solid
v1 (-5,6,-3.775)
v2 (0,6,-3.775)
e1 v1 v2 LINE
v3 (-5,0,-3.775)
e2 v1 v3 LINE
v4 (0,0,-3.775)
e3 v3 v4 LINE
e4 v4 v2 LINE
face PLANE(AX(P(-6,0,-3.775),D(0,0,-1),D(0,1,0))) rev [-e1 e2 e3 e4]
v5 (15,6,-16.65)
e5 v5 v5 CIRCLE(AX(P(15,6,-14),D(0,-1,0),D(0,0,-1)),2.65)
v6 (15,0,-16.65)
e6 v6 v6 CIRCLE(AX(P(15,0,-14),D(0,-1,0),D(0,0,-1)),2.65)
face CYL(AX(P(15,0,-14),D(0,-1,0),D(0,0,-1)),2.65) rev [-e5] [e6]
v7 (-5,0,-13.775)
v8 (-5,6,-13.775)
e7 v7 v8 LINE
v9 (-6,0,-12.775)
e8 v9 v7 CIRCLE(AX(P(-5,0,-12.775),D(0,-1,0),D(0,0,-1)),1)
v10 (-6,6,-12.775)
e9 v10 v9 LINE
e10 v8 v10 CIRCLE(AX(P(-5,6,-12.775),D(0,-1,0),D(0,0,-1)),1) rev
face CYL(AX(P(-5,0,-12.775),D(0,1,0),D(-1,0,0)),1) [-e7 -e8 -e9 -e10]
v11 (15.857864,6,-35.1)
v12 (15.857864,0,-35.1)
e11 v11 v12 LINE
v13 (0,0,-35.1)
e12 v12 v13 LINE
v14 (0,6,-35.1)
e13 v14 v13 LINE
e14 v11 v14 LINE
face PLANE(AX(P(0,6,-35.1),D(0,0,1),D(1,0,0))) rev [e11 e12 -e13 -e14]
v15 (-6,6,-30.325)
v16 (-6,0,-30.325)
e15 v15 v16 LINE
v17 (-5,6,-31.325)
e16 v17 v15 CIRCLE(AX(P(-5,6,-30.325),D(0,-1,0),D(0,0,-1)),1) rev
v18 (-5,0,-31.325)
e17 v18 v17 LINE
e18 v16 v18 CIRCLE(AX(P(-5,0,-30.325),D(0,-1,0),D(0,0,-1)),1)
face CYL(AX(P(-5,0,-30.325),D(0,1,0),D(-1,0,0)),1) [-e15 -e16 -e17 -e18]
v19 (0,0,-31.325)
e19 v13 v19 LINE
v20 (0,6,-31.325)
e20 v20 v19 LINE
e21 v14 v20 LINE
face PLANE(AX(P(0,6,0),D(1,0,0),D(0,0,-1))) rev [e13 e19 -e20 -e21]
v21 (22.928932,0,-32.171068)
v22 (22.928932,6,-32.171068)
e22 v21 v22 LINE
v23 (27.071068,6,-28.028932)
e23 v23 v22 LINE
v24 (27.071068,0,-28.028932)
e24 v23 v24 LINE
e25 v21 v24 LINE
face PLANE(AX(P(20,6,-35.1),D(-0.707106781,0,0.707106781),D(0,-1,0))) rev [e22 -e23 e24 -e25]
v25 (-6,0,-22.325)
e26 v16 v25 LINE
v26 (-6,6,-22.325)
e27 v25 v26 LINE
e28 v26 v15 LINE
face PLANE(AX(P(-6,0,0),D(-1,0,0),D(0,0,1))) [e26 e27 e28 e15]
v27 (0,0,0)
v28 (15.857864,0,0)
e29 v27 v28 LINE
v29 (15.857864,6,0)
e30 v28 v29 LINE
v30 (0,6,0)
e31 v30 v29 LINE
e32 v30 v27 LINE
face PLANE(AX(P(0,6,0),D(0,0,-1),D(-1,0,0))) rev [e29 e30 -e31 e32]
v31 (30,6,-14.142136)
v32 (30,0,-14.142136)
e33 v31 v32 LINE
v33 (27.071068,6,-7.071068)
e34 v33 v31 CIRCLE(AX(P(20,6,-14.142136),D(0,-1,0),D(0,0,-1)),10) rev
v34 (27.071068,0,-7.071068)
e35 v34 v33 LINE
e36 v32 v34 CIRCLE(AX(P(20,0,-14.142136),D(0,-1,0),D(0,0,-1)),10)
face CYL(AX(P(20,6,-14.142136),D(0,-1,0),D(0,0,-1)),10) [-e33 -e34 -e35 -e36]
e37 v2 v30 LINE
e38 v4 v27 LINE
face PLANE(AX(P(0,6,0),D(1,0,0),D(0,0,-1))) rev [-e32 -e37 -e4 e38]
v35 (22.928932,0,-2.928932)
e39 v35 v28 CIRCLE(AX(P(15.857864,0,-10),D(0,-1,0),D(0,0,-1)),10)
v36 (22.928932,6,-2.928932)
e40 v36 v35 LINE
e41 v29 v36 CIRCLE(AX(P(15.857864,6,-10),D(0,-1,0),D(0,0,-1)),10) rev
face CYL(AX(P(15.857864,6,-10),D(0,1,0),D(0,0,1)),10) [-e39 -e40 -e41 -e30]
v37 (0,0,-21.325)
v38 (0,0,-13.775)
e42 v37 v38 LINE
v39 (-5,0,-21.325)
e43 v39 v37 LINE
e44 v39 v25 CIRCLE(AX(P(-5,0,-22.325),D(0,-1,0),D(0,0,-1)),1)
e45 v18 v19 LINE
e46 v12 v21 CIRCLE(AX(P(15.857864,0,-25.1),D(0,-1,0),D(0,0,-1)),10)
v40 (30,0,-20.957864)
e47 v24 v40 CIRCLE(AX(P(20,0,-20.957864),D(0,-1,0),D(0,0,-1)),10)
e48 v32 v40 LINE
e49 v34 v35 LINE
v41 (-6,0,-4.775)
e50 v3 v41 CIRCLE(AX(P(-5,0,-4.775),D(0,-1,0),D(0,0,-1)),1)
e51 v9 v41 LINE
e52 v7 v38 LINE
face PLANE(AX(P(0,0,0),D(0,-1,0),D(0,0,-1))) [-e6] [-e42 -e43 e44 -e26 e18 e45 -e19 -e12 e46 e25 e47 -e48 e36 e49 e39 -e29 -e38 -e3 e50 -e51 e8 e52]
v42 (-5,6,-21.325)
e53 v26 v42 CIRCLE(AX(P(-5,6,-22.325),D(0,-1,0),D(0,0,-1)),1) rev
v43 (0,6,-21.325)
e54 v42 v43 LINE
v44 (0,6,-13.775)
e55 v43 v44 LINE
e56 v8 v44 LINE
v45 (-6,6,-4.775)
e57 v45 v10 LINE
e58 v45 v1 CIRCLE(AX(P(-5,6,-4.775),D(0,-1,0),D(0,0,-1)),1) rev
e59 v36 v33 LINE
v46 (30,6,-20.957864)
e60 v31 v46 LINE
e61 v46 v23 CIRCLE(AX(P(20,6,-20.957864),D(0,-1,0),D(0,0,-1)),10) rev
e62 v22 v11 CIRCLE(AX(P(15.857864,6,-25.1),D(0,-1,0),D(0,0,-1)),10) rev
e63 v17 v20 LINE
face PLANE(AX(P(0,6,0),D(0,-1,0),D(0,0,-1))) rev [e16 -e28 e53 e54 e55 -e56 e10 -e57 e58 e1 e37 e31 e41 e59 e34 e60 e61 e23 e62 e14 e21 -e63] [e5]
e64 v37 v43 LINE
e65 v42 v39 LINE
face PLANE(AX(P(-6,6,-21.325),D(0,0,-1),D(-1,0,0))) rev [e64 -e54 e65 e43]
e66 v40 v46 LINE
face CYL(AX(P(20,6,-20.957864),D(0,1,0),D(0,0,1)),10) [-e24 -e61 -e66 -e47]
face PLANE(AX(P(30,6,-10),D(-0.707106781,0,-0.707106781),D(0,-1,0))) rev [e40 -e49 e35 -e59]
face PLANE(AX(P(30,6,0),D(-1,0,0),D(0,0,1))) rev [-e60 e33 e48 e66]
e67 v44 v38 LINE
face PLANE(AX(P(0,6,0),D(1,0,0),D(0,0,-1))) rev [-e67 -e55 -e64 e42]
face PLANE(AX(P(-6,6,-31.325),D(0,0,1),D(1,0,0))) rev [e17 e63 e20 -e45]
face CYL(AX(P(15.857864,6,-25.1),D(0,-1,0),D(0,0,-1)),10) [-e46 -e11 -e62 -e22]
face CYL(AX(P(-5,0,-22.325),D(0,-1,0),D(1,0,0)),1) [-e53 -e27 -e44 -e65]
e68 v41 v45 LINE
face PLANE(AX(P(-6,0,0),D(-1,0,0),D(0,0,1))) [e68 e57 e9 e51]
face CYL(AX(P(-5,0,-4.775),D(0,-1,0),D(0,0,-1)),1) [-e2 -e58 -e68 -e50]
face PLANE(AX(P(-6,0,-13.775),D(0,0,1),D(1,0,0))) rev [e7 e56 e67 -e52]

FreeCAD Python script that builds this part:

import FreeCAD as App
import Part
import Sketcher
from FreeCAD import Vector


def edges_at(feature, points):
    """Names of the edges that pass closest to the given points."""
    edges = feature.Shape.Edges
    near = lambda p: min(range(len(edges)), key=lambda i: edges[i].distToShape(Part.Vertex(*p))[0])
    return sorted({f"Edge{near(p) + 1}" for p in points})

doc = App.newDocument("Part")
params = doc.addObject("Spreadsheet::Sheet", "Params")
for row, (alias, value) in enumerate([
    ("sketch1_width", "30 mm"),
    ("sketch1_height", "35.1 mm"),
    ("pad1_length", "6 mm"),
    ("chamfer_size", "10 mm"),
    ("sketch2_diameter", "5.3 mm"),
    ("hole_diameter", "5.3 mm"),
    ("sketch3_width", "6 mm"),
    ("sketch3_height", "10 mm"),
    ("pad2_length", "6 mm"),
    ("fillet_radius", "1 mm"),
    ("sketch4_width", "6 mm"),
    ("sketch4_height", "10 mm"),
    ("pad3_length", "6 mm"),
    ("fillet2_radius", "1 mm"),
    ("fillet3_radius", "10 mm"),
], start=1):
    params.set(f"A{row}", alias)
    params.set(f"B{row}", "=" + value)
    params.setAlias(f"B{row}", alias)

body = doc.addObject("PartDesign::Body", "Body")

# Sketch on XZ plane
sketch1 = body.newObject("Sketcher::SketchObject", "Sketch")
sketch1.AttachmentSupport = (doc.getObject("XZ_Plane"), [""])
sketch1.MapMode = "FlatFace"
sketch1.addGeometry(Part.LineSegment(Vector(0, -35, 0), Vector(0, 0, 0)), False)
sketch1.addGeometry(Part.LineSegment(Vector(0, 0, 0), Vector(30, 0, 0)), False)
sketch1.addGeometry(Part.LineSegment(Vector(30, 0, 0), Vector(30, -35, 0)), False)
sketch1.addGeometry(Part.LineSegment(Vector(30, -35, 0), Vector(0, -35, 0)), False)
sketch1.addConstraint(Sketcher.Constraint("Coincident", 0, 2, 1, 1))
sketch1.addConstraint(Sketcher.Constraint("Coincident", 1, 2, 2, 1))
sketch1.addConstraint(Sketcher.Constraint("Coincident", 2, 2, 3, 1))
sketch1.addConstraint(Sketcher.Constraint("Coincident", 3, 2, 0, 1))
sketch1.addConstraint(Sketcher.Constraint("Vertical", 0))
sketch1.addConstraint(Sketcher.Constraint("Horizontal", 1))
sketch1.addConstraint(Sketcher.Constraint("Vertical", 2))
sketch1.addConstraint(Sketcher.Constraint("Horizontal", 3))
sketch1.addConstraint(Sketcher.Constraint("Coincident", 0, 2, -1, 1))
sketch1.addConstraint(Sketcher.Constraint("DistanceX", 1, 1, 1, 2, 30.0))
sketch1.addConstraint(Sketcher.Constraint("DistanceY", 0, 1, 0, 2, 35.1))
sketch1.setExpression("Constraints[9]", "Params.sketch1_width")
sketch1.setExpression("Constraints[10]", "Params.sketch1_height")
pad1 = body.newObject("PartDesign::Pad", "Pad")
pad1.Profile = sketch1
pad1.setExpression("Length", "Params.pad1_length")
pad1.Reversed = True
doc.recompute()

chamfer = body.newObject("PartDesign::Chamfer", "Chamfer")
chamfer.Base = (pad1, edges_at(pad1, [(30, 3, -35.1), (30, 3, 0)]))
chamfer.setExpression("Size", "Params.chamfer_size")

# Sketch on XZ plane
sketch2 = body.newObject("Sketcher::SketchObject", "Sketch001")
sketch2.AttachmentSupport = (doc.getObject("XZ_Plane"), [""])
sketch2.MapMode = "FlatFace"
sketch2.addGeometry(Part.Circle(Vector(15, -14, 0), Vector(0, 0, 1), 2.6), False)
sketch2.addConstraint(Sketcher.Constraint("Diameter", 0, 5.3))
sketch2.addConstraint(Sketcher.Constraint("DistanceX", -1, 1, 0, 3, 15.0))
sketch2.addConstraint(Sketcher.Constraint("DistanceY", 0, 3, -1, 1, 14.0))
sketch2.setExpression("Constraints[0]", "Params.sketch2_diameter")
doc.recompute()
hole = body.newObject("PartDesign::Hole", "Hole")
hole.Profile = sketch2
hole.ThreadType = "None"
hole.setExpression("Diameter", "Params.hole_diameter")
hole.DepthType = "ThroughAll"

# Sketch on YZ plane
sketch3 = body.newObject("Sketcher::SketchObject", "Sketch002")
sketch3.AttachmentSupport = (doc.getObject("YZ_Plane"), [""])
sketch3.MapMode = "FlatFace"
sketch3.addGeometry(Part.LineSegment(Vector(0, -4, 0), Vector(6, -4, 0)), False)
sketch3.addGeometry(Part.LineSegment(Vector(6, -4, 0), Vector(6, -14, 0)), False)
sketch3.addGeometry(Part.LineSegment(Vector(6, -14, 0), Vector(0, -14, 0)), False)
sketch3.addGeometry(Part.LineSegment(Vector(0, -14, 0), Vector(0, -4, 0)), False)
sketch3.addConstraint(Sketcher.Constraint("Coincident", 0, 2, 1, 1))
sketch3.addConstraint(Sketcher.Constraint("Coincident", 1, 2, 2, 1))
sketch3.addConstraint(Sketcher.Constraint("Coincident", 2, 2, 3, 1))
sketch3.addConstraint(Sketcher.Constraint("Coincident", 3, 2, 0, 1))
sketch3.addConstraint(Sketcher.Constraint("Horizontal", 0))
sketch3.addConstraint(Sketcher.Constraint("Vertical", 1))
sketch3.addConstraint(Sketcher.Constraint("Horizontal", 2))
sketch3.addConstraint(Sketcher.Constraint("Vertical", 3))
sketch3.addConstraint(Sketcher.Constraint("PointOnObject", 2, 2, -2))
sketch3.addConstraint(Sketcher.Constraint("DistanceX", 0, 1, 0, 2, 6.0))
sketch3.addConstraint(Sketcher.Constraint("DistanceY", 1, 2, 1, 1, 10.0))
sketch3.addConstraint(Sketcher.Constraint("DistanceY", 0, 2, -1, 1, 3.775))
sketch3.setExpression("Constraints[9]", "Params.sketch3_width")
sketch3.setExpression("Constraints[10]", "Params.sketch3_height")
pad2 = body.newObject("PartDesign::Pad", "Pad001")
pad2.Profile = sketch3
pad2.setExpression("Length", "Params.pad2_length")
pad2.Reversed = True
doc.recompute()

fillet = body.newObject("PartDesign::Fillet", "Fillet")
fillet.Base = (pad2, edges_at(pad2, [(-6, 3, -3.775), (-6, 3, -13.775)]))
fillet.setExpression("Radius", "Params.fillet_radius")

# Sketch on YZ plane
sketch4 = body.newObject("Sketcher::SketchObject", "Sketch003")
sketch4.AttachmentSupport = (doc.getObject("YZ_Plane"), [""])
sketch4.MapMode = "FlatFace"
sketch4.addGeometry(Part.LineSegment(Vector(6, -31, 0), Vector(0, -31, 0)), False)
sketch4.addGeometry(Part.LineSegment(Vector(0, -31, 0), Vector(0, -21, 0)), False)
sketch4.addGeometry(Part.LineSegment(Vector(0, -21, 0), Vector(6, -21, 0)), False)
sketch4.addGeometry(Part.LineSegment(Vector(6, -21, 0), Vector(6, -31, 0)), False)
sketch4.addConstraint(Sketcher.Constraint("Coincident", 0, 2, 1, 1))
sketch4.addConstraint(Sketcher.Constraint("Coincident", 1, 2, 2, 1))
sketch4.addConstraint(Sketcher.Constraint("Coincident", 2, 2, 3, 1))
sketch4.addConstraint(Sketcher.Constraint("Coincident", 3, 2, 0, 1))
sketch4.addConstraint(Sketcher.Constraint("Horizontal", 0))
sketch4.addConstraint(Sketcher.Constraint("Vertical", 1))
sketch4.addConstraint(Sketcher.Constraint("Horizontal", 2))
sketch4.addConstraint(Sketcher.Constraint("Vertical", 3))
sketch4.addConstraint(Sketcher.Constraint("PointOnObject", 0, 2, -2))
sketch4.addConstraint(Sketcher.Constraint("DistanceX", 0, 2, 0, 1, 6.0))
sketch4.addConstraint(Sketcher.Constraint("DistanceY", 1, 1, 1, 2, 10.0))
sketch4.addConstraint(Sketcher.Constraint("DistanceY", 0, 2, -1, 1, 31.325))
sketch4.setExpression("Constraints[9]", "Params.sketch4_width")
sketch4.setExpression("Constraints[10]", "Params.sketch4_height")
pad3 = body.newObject("PartDesign::Pad", "Pad002")
pad3.Profile = sketch4
pad3.setExpression("Length", "Params.pad3_length")
pad3.Reversed = True
doc.recompute()

fillet2 = body.newObject("PartDesign::Fillet", "Fillet001")
fillet2.Base = (pad3, edges_at(pad3, [(-6, 3, -21.325), (-6, 3, -31.325)]))
fillet2.setExpression("Radius", "Params.fillet2_radius")
doc.recompute()

fillet3 = body.newObject("PartDesign::Fillet", "Fillet002")
fillet3.Base = (fillet2, edges_at(fillet2, [
    (20, 3, -35.1),
    (30, 3, -10),
    (30, 3, -25.1),
    (20, 3, 0),
]))
fillet3.setExpression("Radius", "Params.fillet3_radius")

doc.recompute()
